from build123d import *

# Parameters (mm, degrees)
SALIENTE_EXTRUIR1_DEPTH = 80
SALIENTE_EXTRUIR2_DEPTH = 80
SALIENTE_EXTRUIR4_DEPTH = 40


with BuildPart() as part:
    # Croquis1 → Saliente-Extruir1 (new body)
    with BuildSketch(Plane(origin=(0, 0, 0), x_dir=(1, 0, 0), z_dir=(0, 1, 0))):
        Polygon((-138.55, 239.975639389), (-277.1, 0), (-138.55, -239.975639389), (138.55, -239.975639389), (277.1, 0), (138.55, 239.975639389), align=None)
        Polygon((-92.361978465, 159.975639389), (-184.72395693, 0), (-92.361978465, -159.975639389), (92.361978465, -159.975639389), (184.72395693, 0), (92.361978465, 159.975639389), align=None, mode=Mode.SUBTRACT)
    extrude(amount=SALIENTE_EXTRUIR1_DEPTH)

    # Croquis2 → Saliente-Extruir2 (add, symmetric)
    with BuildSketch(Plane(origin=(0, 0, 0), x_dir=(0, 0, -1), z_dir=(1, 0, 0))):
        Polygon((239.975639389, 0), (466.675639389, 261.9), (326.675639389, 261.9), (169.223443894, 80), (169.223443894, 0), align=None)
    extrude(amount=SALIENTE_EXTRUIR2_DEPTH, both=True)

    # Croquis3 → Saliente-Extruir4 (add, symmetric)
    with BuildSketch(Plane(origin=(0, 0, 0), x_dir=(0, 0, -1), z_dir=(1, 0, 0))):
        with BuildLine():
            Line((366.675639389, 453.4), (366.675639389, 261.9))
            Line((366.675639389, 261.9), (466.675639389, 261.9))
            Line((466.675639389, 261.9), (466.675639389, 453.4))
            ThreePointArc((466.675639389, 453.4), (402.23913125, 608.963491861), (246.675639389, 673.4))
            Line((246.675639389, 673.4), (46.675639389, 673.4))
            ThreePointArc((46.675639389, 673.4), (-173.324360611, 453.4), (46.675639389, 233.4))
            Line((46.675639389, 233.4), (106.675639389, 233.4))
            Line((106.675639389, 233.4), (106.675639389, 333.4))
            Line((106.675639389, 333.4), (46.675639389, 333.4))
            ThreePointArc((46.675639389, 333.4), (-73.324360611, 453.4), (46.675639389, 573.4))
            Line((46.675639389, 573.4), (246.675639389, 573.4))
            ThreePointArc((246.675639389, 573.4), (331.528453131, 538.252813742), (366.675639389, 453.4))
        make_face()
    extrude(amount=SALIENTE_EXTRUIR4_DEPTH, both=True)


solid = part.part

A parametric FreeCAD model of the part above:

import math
import FreeCAD as App
import Part
import Sketcher
from FreeCAD import Vector
Q = App.Units.Quantity


def add_polygon(sketch, points):
    """Adds a closed chain of lines whose ends are joined by coincident constraints."""
    first, n = sketch.GeometryCount, len(points)
    for a, b in zip(points, points[1:] + points[:1]):
        sketch.addGeometry(Part.LineSegment(App.Vector(*a, 0), App.Vector(*b, 0)), False)
    for i in range(n):
        sketch.addConstraint(Sketcher.Constraint("Coincident", first + i, 2, first + (i + 1) % n, 1))

doc = App.newDocument("Part")
body = doc.addObject("PartDesign::Body", "Body")

sketch1 = body.newObject("Sketcher::SketchObject", "Sketch")
sketch1.AttachmentSupport = (doc.getObject("XZ_Plane"), [""])
sketch1.MapMode = "FlatFace"
add_polygon(sketch1, [(-138.55, -239.975639), (-277.1, 0), (-138.55, 239.975639), (138.55, 239.975639), (277.1, 0), (138.55, -239.975639)])
add_polygon(sketch1, [(-184.723957, 0), (-92.361978, -159.975639), (92.361978, -159.975639), (184.723957, 0), (92.361978, 159.975639), (-92.361978, 159.975639)])
sketch1.addConstraint(Sketcher.Constraint("Horizontal", 2))
sketch1.addConstraint(Sketcher.Constraint("Horizontal", 5))
sketch1.addConstraint(Sketcher.Constraint("Horizontal", 7))
sketch1.addConstraint(Sketcher.Constraint("Horizontal", 10))
sketch1.addConstraint(Sketcher.Constraint("Symmetric", 0, 2, 3, 2, -1, 1))
sketch1.addConstraint(Sketcher.Constraint("Symmetric", 1, 2, 4, 2, -1, 1))
sketch1.addConstraint(Sketcher.Constraint("Symmetric", 6, 2, 9, 2, -1, 1))
sketch1.addConstraint(Sketcher.Constraint("Symmetric", 8, 2, 11, 2, -1, 1))
sketch1.addConstraint(Sketcher.Constraint("PointOnObject", 0, 2, -1))
sketch1.addConstraint(Sketcher.Constraint("PointOnObject", 8, 2, -1))
sketch1.addConstraint(Sketcher.Constraint("Parallel", 0, 3))
sketch1.addConstraint(Sketcher.Constraint("Parallel", 3, 6))
sketch1.addConstraint(Sketcher.Constraint("Parallel", 4, 8))
sketch1.addConstraint(Sketcher.Constraint("Parallel", 8, 11))
sketch1.addConstraint(Sketcher.Constraint("Vertical", 2, 2, 4, 2))
sketch1.addConstraint(Sketcher.Constraint("Angle", 0, Q("120 deg")))
sketch1.addConstraint(Sketcher.Constraint("DistanceX", 2, 1, 2, 2, Q("277.1 mm")))
sketch1.addConstraint(Sketcher.Constraint("DistanceY", 5, 2, 6, 2, Q("80 mm")))
sketch1.addConstraint(Sketcher.Constraint("Distance", 0, Q("277.1 mm")))
sketch1.addConstraint(Sketcher.Constraint("DistanceX", 7, 1, 7, 2, Q("184.723957 mm")))
pad1 = body.newObject("PartDesign::Pad", "Pad")
pad1.Profile = sketch1
pad1.Length = 80
pad1.Reversed = True

sketch2 = body.newObject("Sketcher::SketchObject", "Sketch001")
sketch2.AttachmentSupport = (doc.getObject("YZ_Plane"), [""])
sketch2.MapMode = "FlatFace"
add_polygon(sketch2, [(0, -239.975639), (261.9, -466.675639), (261.9, -326.675639), (80, -169.223444), (0, -169.223444)])
sketch2.addConstraint(Sketcher.Constraint("Vertical", 1))
sketch2.addConstraint(Sketcher.Constraint("Horizontal", 3))
sketch2.addConstraint(Sketcher.Constraint("Vertical", 4))
sketch2.addConstraint(Sketcher.Constraint("PointOnObject", 3, 2, -2))
sketch2.addConstraint(Sketcher.Constraint("Parallel", 0, 2))
sketch2.addConstraint(Sketcher.Constraint("DistanceX", 3, 2, 3, 1, Q("80 mm")))
sketch2.addConstraint(Sketcher.Constraint("DistanceY", 1, 1, 1, 2, Q("140 mm")))
sketch2.addConstraint(Sketcher.Constraint("DistanceX", -1, 1, 0, 2, Q("261.9 mm")))
sketch2.addConstraint(Sketcher.Constraint("DistanceY", 1, 2, 4, 2, Q("86.7 mm")))
sketch2.addConstraint(Sketcher.Constraint("DistanceY", 0, 2, -1, 1, Q("466.675639 mm")))
pad2 = body.newObject("PartDesign::Pad", "Pad001")
pad2.Profile = sketch2
pad2.Length = 160
pad2.Midplane = True

sketch3 = body.newObject("Sketcher::SketchObject", "Sketch002")
sketch3.AttachmentSupport = (doc.getObject("YZ_Plane"), [""])
sketch3.MapMode = "FlatFace"
sketch3.addGeometry(Part.LineSegment(Vector(453.4, -366.675639, 0), Vector(261.9, -366.675639, 0)), False)
sketch3.addGeometry(Part.LineSegment(Vector(261.9, -366.675639, 0), Vector(261.9, -466.675639, 0)), False)
sketch3.addGeometry(Part.LineSegment(Vector(261.9, -466.675639, 0), Vector(453.4, -466.675639, 0)), False)
sketch3.addGeometry(Part.ArcOfCircle(Part.Circle(Vector(453.4, -246.675639, 0), Vector(0, 0, 1), 220), math.radians(-90), math.radians(0)), False)
sketch3.addGeometry(Part.LineSegment(Vector(673.4, -246.675639, 0), Vector(673.4, -46.675639, 0)), False)
sketch3.addGeometry(Part.ArcOfCircle(Part.Circle(Vector(453.4, -46.675639, 0), Vector(0, 0, 1), 220), math.radians(0), math.radians(180)), False)
sketch3.addGeometry(Part.LineSegment(Vector(233.4, -46.675639, 0), Vector(233.4, -106.675639, 0)), False)
sketch3.addGeometry(Part.LineSegment(Vector(233.4, -106.675639, 0), Vector(333.4, -106.675639, 0)), False)
sketch3.addGeometry(Part.LineSegment(Vector(333.4, -106.675639, 0), Vector(333.4, -46.675639, 0)), False)
sketch3.addGeometry(Part.ArcOfCircle(Part.Circle(Vector(453.4, -46.675639, 0), Vector(0, 0, 1), 120), math.radians(0), math.radians(180)), False)
sketch3.addGeometry(Part.LineSegment(Vector(573.4, -46.675639, 0), Vector(573.4, -246.675639, 0)), False)
sketch3.addGeometry(Part.ArcOfCircle(Part.Circle(Vector(453.4, -246.675639, 0), Vector(0, 0, 1), 120), math.radians(-90), math.radians(0)), False)
sketch3.addConstraint(Sketcher.Constraint("Coincident", 0, 2, 1, 1))
sketch3.addConstraint(Sketcher.Constraint("Coincident", 1, 2, 2, 1))
sketch3.addConstraint(Sketcher.Constraint("Tangent", 2, 2, 3, 1))
sketch3.addConstraint(Sketcher.Constraint("Tangent", 3, 2, 4, 1))
sketch3.addConstraint(Sketcher.Constraint("Tangent", 4, 2, 5, 1))
sketch3.addConstraint(Sketcher.Constraint("Tangent", 5, 2, 6, 1))
sketch3.addConstraint(Sketcher.Constraint("Coincident", 6, 2, 7, 1))
sketch3.addConstraint(Sketcher.Constraint("Coincident", 7, 2, 8, 1))
sketch3.addConstraint(Sketcher.Constraint("Tangent", 8, 2, 9, 2))
sketch3.addConstraint(Sketcher.Constraint("Tangent", 9, 1, 10, 1))
sketch3.addConstraint(Sketcher.Constraint("Tangent", 10, 2, 11, 2))
sketch3.addConstraint(Sketcher.Constraint("Tangent", 11, 1, 0, 1))
sketch3.addConstraint(Sketcher.Constraint("Horizontal", 0))
sketch3.addConstraint(Sketcher.Constraint("Vertical", 1))
sketch3.addConstraint(Sketcher.Constraint("Horizontal", 2))
sketch3.addConstraint(Sketcher.Constraint("Vertical", 4))
sketch3.addConstraint(Sketcher.Constraint("Vertical", 6))
sketch3.addConstraint(Sketcher.Constraint("Horizontal", 7))
sketch3.addConstraint(Sketcher.Constraint("Vertical", 8))
sketch3.addConstraint(Sketcher.Constraint("Vertical", 10))
sketch3.addConstraint(Sketcher.Constraint("Coincident", 9, 3, 5, 3))
sketch3.addConstraint(Sketcher.Constraint("Coincident", 11, 3, 3, 3))
sketch3.addConstraint(Sketcher.Constraint("Equal", 3, 5))
sketch3.addConstraint(Sketcher.Constraint("Radius", 3, Q("220 mm")))
sketch3.addConstraint(Sketcher.Constraint("Radius", 9, Q("120 mm")))
sketch3.addConstraint(Sketcher.Constraint("DistanceY", 4, 1, 4, 2, Q("200 mm")))
sketch3.addConstraint(Sketcher.Constraint("DistanceY", 6, 2, 6, 1, Q("60 mm")))
sketch3.addConstraint(Sketcher.Constraint("DistanceX", 0, 2, 0, 1, Q("191.5 mm")))
sketch3.addConstraint(Sketcher.Constraint("DistanceX", -1, 1, 3, 3, Q("453.4 mm")))
sketch3.addConstraint(Sketcher.Constraint("DistanceY", 3, 3, -1, 1, Q("246.675639 mm")))
pad3 = body.newObject("PartDesign::Pad", "Pad002")
pad3.Profile = sketch3
pad3.Length = 80
pad3.Midplane = True

doc.recompute()
